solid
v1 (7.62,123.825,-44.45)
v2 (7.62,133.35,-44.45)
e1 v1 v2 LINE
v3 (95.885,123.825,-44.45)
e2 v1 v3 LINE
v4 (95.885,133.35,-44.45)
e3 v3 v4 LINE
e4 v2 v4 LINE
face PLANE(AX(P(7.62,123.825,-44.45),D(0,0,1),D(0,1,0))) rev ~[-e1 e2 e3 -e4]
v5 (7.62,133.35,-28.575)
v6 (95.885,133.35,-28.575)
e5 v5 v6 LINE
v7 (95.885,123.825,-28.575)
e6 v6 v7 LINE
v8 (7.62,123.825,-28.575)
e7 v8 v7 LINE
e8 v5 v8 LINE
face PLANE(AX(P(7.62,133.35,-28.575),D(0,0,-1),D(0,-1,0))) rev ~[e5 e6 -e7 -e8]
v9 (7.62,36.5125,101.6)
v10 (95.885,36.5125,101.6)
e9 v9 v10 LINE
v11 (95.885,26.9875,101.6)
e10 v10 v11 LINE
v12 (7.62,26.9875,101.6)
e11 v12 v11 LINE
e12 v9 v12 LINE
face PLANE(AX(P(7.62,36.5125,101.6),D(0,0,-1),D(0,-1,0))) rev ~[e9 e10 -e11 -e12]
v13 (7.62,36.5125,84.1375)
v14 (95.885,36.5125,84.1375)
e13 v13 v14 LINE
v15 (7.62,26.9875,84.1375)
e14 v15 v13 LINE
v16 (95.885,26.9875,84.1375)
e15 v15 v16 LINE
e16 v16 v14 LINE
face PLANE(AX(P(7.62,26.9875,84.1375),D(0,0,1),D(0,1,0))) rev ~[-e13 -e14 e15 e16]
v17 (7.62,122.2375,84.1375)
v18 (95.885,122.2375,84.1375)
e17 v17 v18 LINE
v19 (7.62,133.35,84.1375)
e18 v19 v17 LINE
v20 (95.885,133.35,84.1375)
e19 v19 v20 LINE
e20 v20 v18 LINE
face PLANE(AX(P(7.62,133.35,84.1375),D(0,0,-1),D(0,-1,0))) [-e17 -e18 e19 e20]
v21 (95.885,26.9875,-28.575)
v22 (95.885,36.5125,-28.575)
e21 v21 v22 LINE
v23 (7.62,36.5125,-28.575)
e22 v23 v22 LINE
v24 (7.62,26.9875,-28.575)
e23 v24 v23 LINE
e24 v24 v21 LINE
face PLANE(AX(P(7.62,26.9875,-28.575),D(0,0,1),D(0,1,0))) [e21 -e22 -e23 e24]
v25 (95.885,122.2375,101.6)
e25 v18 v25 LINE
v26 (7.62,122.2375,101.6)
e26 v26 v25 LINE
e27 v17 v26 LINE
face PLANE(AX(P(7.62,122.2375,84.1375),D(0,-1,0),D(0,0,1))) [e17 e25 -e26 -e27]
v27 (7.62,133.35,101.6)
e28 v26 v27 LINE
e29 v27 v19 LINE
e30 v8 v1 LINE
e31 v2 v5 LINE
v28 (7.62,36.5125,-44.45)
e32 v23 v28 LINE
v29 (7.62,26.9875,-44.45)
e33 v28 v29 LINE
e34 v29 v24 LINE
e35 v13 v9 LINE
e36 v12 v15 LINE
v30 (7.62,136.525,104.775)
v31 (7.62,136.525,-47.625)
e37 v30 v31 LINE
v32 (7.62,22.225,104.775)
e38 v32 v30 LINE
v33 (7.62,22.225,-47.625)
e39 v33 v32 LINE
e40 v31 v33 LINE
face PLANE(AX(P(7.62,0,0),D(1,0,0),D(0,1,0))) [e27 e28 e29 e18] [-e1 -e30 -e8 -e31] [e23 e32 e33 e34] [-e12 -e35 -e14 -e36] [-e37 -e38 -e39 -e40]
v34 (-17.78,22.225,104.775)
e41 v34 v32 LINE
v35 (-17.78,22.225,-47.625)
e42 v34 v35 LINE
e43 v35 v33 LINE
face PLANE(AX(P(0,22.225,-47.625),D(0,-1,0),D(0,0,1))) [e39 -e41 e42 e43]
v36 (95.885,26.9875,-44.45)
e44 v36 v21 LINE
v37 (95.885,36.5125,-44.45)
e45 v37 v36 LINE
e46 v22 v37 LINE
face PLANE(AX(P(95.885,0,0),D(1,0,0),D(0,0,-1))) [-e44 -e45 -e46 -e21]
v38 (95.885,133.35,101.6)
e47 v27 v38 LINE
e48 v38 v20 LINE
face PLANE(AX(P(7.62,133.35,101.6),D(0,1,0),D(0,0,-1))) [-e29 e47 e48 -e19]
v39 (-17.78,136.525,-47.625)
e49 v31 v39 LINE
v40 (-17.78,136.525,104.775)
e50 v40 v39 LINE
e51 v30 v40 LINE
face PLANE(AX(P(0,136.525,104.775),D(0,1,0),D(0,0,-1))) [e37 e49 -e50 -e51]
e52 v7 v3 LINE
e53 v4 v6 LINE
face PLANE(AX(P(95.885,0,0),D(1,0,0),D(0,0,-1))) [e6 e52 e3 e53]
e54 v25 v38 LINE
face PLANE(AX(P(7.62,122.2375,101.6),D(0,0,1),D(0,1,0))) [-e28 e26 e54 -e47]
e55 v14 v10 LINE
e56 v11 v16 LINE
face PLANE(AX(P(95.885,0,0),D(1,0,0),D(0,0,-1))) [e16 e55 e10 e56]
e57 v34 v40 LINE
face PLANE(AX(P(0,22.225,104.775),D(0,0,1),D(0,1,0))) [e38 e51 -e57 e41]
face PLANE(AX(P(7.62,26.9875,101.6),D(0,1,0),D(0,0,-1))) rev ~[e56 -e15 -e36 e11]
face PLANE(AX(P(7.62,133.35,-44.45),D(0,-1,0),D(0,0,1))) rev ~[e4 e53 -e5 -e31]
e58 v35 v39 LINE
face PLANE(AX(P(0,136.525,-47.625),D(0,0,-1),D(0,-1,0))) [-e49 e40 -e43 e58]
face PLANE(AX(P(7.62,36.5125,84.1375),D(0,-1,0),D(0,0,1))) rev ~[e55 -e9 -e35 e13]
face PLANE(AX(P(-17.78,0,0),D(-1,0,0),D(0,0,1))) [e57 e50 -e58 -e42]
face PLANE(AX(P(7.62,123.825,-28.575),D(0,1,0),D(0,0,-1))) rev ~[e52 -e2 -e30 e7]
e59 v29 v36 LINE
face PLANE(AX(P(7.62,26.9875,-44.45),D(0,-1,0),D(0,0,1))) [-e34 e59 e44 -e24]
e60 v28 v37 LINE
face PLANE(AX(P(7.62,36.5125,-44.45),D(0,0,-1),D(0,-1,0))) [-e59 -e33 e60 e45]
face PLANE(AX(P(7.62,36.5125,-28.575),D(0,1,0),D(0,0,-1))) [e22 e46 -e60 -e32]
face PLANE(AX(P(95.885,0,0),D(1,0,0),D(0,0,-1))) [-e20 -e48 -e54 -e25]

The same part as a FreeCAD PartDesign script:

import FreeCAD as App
import Part
import Sketcher
from FreeCAD import Vector
Q = App.Units.Quantity

doc = App.newDocument("Part")
body = doc.addObject("PartDesign::Body", "Body")

sketch1 = body.newObject("Sketcher::SketchObject", "Sketch")
sketch1.AttachmentSupport = (doc.getObject("YZ_Plane"), [""])
sketch1.MapMode = "FlatFace"
sketch1.addGeometry([
    Part.LineSegment(Vector(136.525, 104.775, 0), Vector(22.225, 104.775, 0)),
    Part.LineSegment(Vector(22.225, 104.775, 0), Vector(22.225, -47.625, 0)),
    Part.LineSegment(Vector(22.225, -47.625, 0), Vector(136.525, -47.625, 0)),
    Part.LineSegment(Vector(136.525, -47.625, 0), Vector(136.525, 104.775, 0)),
], False)
sketch1.addConstraint([
    Sketcher.Constraint("Coincident", 0, 2, 1, 1),
    Sketcher.Constraint("Coincident", 1, 2, 2, 1),
    Sketcher.Constraint("Coincident", 2, 2, 3, 1),
    Sketcher.Constraint("Coincident", 3, 2, 0, 1),
    Sketcher.Constraint("Horizontal", 0),
    Sketcher.Constraint("Vertical", 1),
    Sketcher.Constraint("Horizontal", 2),
    Sketcher.Constraint("Vertical", 3),
    Sketcher.Constraint("DistanceY", 1, 2, 1, 1, Q("6 in")),
    Sketcher.Constraint("DistanceX", 0, 2, 0, 1, Q("4.5 in")),
    Sketcher.Constraint("DistanceX", -1, 1, 0, 2, Q("0.875 in")),
    Sketcher.Constraint("DistanceY", -1, 1, 0, 2, Q("4.125 in")),
])
pad1 = body.newObject("PartDesign::Pad", "Pad")
pad1.Profile = sketch1
pad1.Length = Q("0.3 in")

sketch2 = body.newObject("Sketcher::SketchObject", "Sketch001")
sketch2.AttachmentSupport = (doc.getObject("YZ_Plane"), [""])
sketch2.MapMode = "FlatFace"
sketch2.AttachmentOffset = App.Placement(Vector(0, 0, 0.3 * 25.4), App.Rotation())
sketch2.addGeometry([
    Part.LineSegment(Vector(133.35, 84.1375, 0), Vector(133.35, 101.6, 0)),
    Part.LineSegment(Vector(133.35, 101.6, 0), Vector(122.2375, 101.6, 0)),
    Part.LineSegment(Vector(122.2375, 101.6, 0), Vector(122.2375, 84.1375, 0)),
    Part.LineSegment(Vector(122.2375, 84.1375, 0), Vector(133.35, 84.1375, 0)),
    Part.LineSegment(Vector(36.5125, 101.6, 0), Vector(26.9875, 101.6, 0)),
    Part.LineSegment(Vector(26.9875, 101.6, 0), Vector(26.9875, 84.1375, 0)),
    Part.LineSegment(Vector(26.9875, 84.1375, 0), Vector(36.5125, 84.1375, 0)),
    Part.LineSegment(Vector(36.5125, 84.1375, 0), Vector(36.5125, 101.6, 0)),
    Part.LineSegment(Vector(123.825, -44.45, 0), Vector(133.35, -44.45, 0)),
    Part.LineSegment(Vector(133.35, -44.45, 0), Vector(133.35, -28.575, 0)),
    Part.LineSegment(Vector(133.35, -28.575, 0), Vector(123.825, -28.575, 0)),
    Part.LineSegment(Vector(123.825, -28.575, 0), Vector(123.825, -44.45, 0)),
    Part.LineSegment(Vector(26.9875, -28.575, 0), Vector(26.9875, -44.45, 0)),
    Part.LineSegment(Vector(26.9875, -44.45, 0), Vector(36.5125, -44.45, 0)),
    Part.LineSegment(Vector(36.5125, -44.45, 0), Vector(36.5125, -28.575, 0)),
    Part.LineSegment(Vector(36.5125, -28.575, 0), Vector(26.9875, -28.575, 0)),
], False)
sketch2.addConstraint([
    Sketcher.Constraint("Coincident", 0, 2, 1, 1),
    Sketcher.Constraint("Coincident", 1, 2, 2, 1),
    Sketcher.Constraint("Coincident", 2, 2, 3, 1),
    Sketcher.Constraint("Coincident", 3, 2, 0, 1),
    Sketcher.Constraint("Coincident", 4, 2, 5, 1),
    Sketcher.Constraint("Coincident", 5, 2, 6, 1),
    Sketcher.Constraint("Coincident", 6, 2, 7, 1),
    Sketcher.Constraint("Coincident", 7, 2, 4, 1),
    Sketcher.Constraint("Coincident", 8, 2, 9, 1),
    Sketcher.Constraint("Coincident", 9, 2, 10, 1),
    Sketcher.Constraint("Coincident", 10, 2, 11, 1),
    Sketcher.Constraint("Coincident", 11, 2, 8, 1),
    Sketcher.Constraint("Coincident", 12, 2, 13, 1),
    Sketcher.Constraint("Coincident", 13, 2, 14, 1),
    Sketcher.Constraint("Coincident", 14, 2, 15, 1),
    Sketcher.Constraint("Coincident", 15, 2, 12, 1),
    Sketcher.Constraint("Vertical", 0),
    Sketcher.Constraint("Horizontal", 1),
    Sketcher.Constraint("Vertical", 2),
    Sketcher.Constraint("Horizontal", 3),
    Sketcher.Constraint("Horizontal", 4),
    Sketcher.Constraint("Vertical", 5),
    Sketcher.Constraint("Horizontal", 6),
    Sketcher.Constraint("Vertical", 7),
    Sketcher.Constraint("Horizontal", 8),
    Sketcher.Constraint("Vertical", 9),
    Sketcher.Constraint("Horizontal", 10),
    Sketcher.Constraint("Vertical", 11),
    Sketcher.Constraint("Vertical", 12),
    Sketcher.Constraint("Horizontal", 13),
    Sketcher.Constraint("Vertical", 14),
    Sketcher.Constraint("Horizontal", 15),
    Sketcher.Constraint("Horizontal", 1, 2, 4, 2),
    Sketcher.Constraint("Horizontal", 3, 2, 5, 2),
    Sketcher.Constraint("Horizontal", 11, 2, 12, 2),
    Sketcher.Constraint("Horizontal", 10, 2, 14, 2),
    Sketcher.Constraint("Vertical", 3, 2, 8, 2),
    Sketcher.Constraint("Vertical", 5, 2, 12, 2),
    Sketcher.Constraint("Vertical", 7, 2, 13, 2),
    Sketcher.Constraint("Equal", 6, 8),
    Sketcher.Constraint("DistanceY", -1, 1, 0, 2, Q("4 in")),
    Sketcher.Constraint("DistanceX", 1, 2, 1, 1, Q("0.4375 in")),
    Sketcher.Constraint("DistanceX", 4, 2, 4, 1, Q("0.375 in")),
    Sketcher.Constraint("DistanceY", 0, 1, 0, 2, Q("0.6875 in")),
    Sketcher.Constraint("DistanceY", 9, 1, 9, 2, Q("0.625 in")),
    Sketcher.Constraint("DistanceX", -1, 1, 0, 2, Q("5.25 in")),
    Sketcher.Constraint("DistanceY", 8, 2, -1, 1, Q("1.75 in")),
    Sketcher.Constraint("DistanceX", 4, 2, 1, 2, Q("3.75 in")),
])
pad2 = body.newObject("PartDesign::Pad", "Pad001")
pad2.Profile = sketch2
pad2.Length = Q("3.475 in")

sketch3 = body.newObject("Sketcher::SketchObject", "Sketch002")
sketch3.AttachmentSupport = (doc.getObject("YZ_Plane"), [""])
sketch3.MapMode = "FlatFace"
sketch3.addGeometry([
    Part.LineSegment(Vector(22.225, -47.625, 0), Vector(22.225, 104.775, 0)),
    Part.LineSegment(Vector(22.225, 104.775, 0), Vector(136.525, 104.775, 0)),
    Part.LineSegment(Vector(136.525, 104.775, 0), Vector(136.525, -47.625, 0)),
    Part.LineSegment(Vector(136.525, -47.625, 0), Vector(22.225, -47.625, 0)),
], False)
sketch3.addConstraint([
    Sketcher.Constraint("Coincident", 0, 2, 1, 1),
    Sketcher.Constraint("Coincident", 1, 2, 2, 1),
    Sketcher.Constraint("Coincident", 2, 2, 3, 1),
    Sketcher.Constraint("Coincident", 3, 2, 0, 1),
    Sketcher.Constraint("Vertical", 0),
    Sketcher.Constraint("Horizontal", 1),
    Sketcher.Constraint("Vertical", 2),
    Sketcher.Constraint("Horizontal", 3),
    Sketcher.Constraint("DistanceY", 0, 1, 0, 2, Q("6 in")),
    Sketcher.Constraint("DistanceX", 1, 1, 1, 2, Q("4.5 in")),
    Sketcher.Constraint("DistanceX", -1, 1, 0, 2, Q("0.875 in")),
    Sketcher.Constraint("DistanceY", -1, 1, 0, 2, Q("4.125 in")),
])
pad3 = body.newObject("PartDesign::Pad", "Pad002")
pad3.Profile = sketch3
pad3.Length = Q("0.7 in")
pad3.Reversed = True

doc.recompute()
